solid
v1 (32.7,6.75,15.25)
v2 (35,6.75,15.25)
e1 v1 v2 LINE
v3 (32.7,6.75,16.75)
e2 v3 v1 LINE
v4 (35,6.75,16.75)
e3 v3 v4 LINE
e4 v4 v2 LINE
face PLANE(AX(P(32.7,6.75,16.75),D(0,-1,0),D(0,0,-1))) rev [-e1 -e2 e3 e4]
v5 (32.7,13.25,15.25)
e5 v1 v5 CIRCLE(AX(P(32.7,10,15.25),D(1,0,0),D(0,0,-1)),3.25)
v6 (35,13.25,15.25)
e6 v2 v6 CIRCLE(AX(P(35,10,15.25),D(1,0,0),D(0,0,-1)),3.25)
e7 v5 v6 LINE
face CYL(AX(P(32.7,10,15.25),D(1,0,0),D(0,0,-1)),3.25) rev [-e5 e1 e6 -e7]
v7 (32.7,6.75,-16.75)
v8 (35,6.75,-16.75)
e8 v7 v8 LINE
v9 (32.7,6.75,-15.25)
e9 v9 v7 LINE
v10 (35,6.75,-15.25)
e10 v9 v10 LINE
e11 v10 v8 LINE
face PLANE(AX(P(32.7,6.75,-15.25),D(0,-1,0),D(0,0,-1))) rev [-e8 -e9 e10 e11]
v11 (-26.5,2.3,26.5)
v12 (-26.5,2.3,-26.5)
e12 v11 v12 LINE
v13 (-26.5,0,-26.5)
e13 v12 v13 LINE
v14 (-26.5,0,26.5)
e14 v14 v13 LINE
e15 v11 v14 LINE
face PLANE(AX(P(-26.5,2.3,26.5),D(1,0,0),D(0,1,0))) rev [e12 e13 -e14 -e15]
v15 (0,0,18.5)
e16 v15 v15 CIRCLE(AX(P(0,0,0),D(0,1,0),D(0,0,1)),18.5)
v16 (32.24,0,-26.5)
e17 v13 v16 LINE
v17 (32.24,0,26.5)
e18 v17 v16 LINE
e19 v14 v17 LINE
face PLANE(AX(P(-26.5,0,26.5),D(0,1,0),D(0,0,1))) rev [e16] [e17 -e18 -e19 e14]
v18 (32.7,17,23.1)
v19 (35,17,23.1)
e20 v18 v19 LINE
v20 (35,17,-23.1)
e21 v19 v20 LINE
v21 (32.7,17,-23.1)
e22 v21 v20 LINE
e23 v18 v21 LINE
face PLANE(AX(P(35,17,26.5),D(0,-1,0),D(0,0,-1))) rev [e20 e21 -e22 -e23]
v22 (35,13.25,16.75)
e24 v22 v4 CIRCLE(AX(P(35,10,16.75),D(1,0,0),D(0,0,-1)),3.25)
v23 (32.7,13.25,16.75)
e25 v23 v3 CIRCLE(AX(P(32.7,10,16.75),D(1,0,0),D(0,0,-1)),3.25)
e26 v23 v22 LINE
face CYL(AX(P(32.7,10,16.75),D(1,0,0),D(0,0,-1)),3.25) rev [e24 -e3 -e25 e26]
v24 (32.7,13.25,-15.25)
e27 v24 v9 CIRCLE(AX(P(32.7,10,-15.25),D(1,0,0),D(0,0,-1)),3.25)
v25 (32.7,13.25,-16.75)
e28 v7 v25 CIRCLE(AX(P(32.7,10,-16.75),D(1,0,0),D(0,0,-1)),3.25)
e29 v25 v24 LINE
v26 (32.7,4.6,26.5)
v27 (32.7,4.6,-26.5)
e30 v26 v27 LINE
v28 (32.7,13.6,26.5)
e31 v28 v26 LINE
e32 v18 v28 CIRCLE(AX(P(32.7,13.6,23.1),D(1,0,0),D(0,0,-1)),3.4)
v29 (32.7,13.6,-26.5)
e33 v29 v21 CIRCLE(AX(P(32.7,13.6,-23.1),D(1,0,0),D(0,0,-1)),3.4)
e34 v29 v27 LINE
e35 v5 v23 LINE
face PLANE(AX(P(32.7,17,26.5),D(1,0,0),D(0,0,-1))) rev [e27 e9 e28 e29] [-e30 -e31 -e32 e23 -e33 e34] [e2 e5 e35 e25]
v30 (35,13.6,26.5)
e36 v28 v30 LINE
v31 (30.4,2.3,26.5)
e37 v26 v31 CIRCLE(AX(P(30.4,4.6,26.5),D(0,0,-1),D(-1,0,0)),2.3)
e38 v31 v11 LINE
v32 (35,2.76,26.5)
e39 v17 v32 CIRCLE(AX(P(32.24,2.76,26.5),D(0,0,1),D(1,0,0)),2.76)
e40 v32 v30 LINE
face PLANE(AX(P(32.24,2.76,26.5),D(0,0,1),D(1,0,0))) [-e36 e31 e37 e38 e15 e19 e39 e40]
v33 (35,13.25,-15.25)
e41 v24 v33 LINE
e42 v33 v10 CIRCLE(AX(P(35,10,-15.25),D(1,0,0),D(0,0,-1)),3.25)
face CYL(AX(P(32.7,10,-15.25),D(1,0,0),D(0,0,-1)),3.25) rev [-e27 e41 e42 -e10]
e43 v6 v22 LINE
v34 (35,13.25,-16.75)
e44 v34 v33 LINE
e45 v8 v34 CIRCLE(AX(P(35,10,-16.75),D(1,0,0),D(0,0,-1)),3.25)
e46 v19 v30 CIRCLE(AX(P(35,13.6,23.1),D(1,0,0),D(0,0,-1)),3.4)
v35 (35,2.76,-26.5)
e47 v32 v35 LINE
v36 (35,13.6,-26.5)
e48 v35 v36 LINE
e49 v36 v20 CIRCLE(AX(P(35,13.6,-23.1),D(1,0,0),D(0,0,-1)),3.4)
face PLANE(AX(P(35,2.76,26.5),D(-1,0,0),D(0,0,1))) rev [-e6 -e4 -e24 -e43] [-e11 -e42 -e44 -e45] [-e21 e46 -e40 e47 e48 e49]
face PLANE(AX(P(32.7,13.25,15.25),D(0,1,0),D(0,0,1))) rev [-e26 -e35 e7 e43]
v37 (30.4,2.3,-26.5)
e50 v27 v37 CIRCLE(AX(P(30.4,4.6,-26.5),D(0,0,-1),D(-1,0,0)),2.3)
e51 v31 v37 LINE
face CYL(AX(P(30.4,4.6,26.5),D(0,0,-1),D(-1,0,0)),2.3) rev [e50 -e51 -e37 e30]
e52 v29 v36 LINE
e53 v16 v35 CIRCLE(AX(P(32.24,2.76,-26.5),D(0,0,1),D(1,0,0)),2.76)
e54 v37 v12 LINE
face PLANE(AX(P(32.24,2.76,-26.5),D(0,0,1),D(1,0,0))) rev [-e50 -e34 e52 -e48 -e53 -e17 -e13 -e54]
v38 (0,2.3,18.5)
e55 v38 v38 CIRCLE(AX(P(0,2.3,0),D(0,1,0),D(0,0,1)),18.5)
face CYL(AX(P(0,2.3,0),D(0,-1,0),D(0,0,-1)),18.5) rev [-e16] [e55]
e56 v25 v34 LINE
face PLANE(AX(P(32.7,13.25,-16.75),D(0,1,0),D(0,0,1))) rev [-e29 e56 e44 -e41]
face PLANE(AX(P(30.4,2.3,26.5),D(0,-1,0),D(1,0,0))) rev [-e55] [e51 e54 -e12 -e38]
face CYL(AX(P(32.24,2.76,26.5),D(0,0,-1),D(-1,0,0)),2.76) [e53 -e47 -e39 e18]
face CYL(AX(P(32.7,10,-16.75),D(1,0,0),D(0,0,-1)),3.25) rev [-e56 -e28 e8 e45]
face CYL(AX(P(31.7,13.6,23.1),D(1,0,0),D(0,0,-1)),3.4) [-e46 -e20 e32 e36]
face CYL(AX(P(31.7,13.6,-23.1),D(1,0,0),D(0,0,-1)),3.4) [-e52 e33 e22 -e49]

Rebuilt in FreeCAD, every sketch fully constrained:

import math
import FreeCAD as App
import Part
import Sketcher


def add_polygon(sketch, points):
    """Adds a closed chain of lines whose ends are joined by coincident constraints."""
    first, n = sketch.GeometryCount, len(points)
    for a, b in zip(points, points[1:] + points[:1]):
        sketch.addGeometry(Part.LineSegment(App.Vector(*a, 0), App.Vector(*b, 0)), False)
    for i in range(n):
        sketch.addConstraint(Sketcher.Constraint("Coincident", first + i, 2, first + (i + 1) % n, 1))

doc = App.newDocument("Part")
body = doc.addObject("PartDesign::Body", "Body")

sketch1 = body.newObject("Sketcher::SketchObject", "Sketch")
sketch1.AttachmentSupport = (doc.getObject("XY_Plane"), [""])
sketch1.MapMode = "FlatFace"
sketch1.addGeometry([
    Part.LineSegment(App.Vector(-26.5, 0, 0), App.Vector(32.2, 0, 0)),
    Part.ArcOfCircle(Part.Circle(App.Vector(32.2, 2.8, 0), App.Vector(0, 0, 1), 2.8), math.radians(-90), math.radians(0)),
    Part.LineSegment(App.Vector(35, 2.8, 0), App.Vector(35, 17, 0)),
    Part.LineSegment(App.Vector(35, 17, 0), App.Vector(32.7, 17, 0)),
    Part.LineSegment(App.Vector(32.7, 17, 0), App.Vector(32.7, 4.6, 0)),
    Part.ArcOfCircle(Part.Circle(App.Vector(30.4, 4.6, 0), App.Vector(0, 0, 1), 2.3), math.radians(-90), math.radians(0)),
    Part.LineSegment(App.Vector(30.4, 2.3, 0), App.Vector(-26.5, 2.3, 0)),
    Part.LineSegment(App.Vector(-26.5, 2.3, 0), App.Vector(-26.5, 0, 0)),
], False)
sketch1.addConstraint([
    Sketcher.Constraint("Tangent", 0, 2, 1, 1),
    Sketcher.Constraint("Tangent", 1, 2, 2, 1),
    Sketcher.Constraint("Coincident", 2, 2, 3, 1),
    Sketcher.Constraint("Coincident", 3, 2, 4, 1),
    Sketcher.Constraint("Tangent", 4, 2, 5, 2),
    Sketcher.Constraint("Tangent", 5, 1, 6, 1),
    Sketcher.Constraint("Coincident", 6, 2, 7, 1),
    Sketcher.Constraint("Coincident", 7, 2, 0, 1),
    Sketcher.Constraint("Horizontal", 0),
    Sketcher.Constraint("Vertical", 2),
    Sketcher.Constraint("Horizontal", 3),
    Sketcher.Constraint("Vertical", 4),
    Sketcher.Constraint("Horizontal", 6),
    Sketcher.Constraint("Vertical", 7),
    Sketcher.Constraint("PointOnObject", 0, 2, -1),
    Sketcher.Constraint("Equal", 3, 7),
    Sketcher.Constraint("Radius", 5, 2.3),
    Sketcher.Constraint("Radius", 1, 2.76),
    Sketcher.Constraint("DistanceX", 3, 2, 3, 1, 2.3),
    Sketcher.Constraint("DistanceX", 6, 2, 6, 1, 56.9),
    Sketcher.Constraint("DistanceY", 4, 2, 4, 1, 12.4),
    Sketcher.Constraint("DistanceX", -1, 1, 1, 2, 35.0),
])
pad1 = body.newObject("PartDesign::Pad", "Pad")
pad1.Profile = sketch1
pad1.Type = "TwoLengths"
pad1.Length = 26.5
pad1.Length2 = 26.5

sketch2 = body.newObject("Sketcher::SketchObject", "Sketch001")
sketch2.AttachmentSupport = (doc.getObject("YZ_Plane"), [""])
sketch2.MapMode = "FlatFace"
sketch2.AttachmentOffset = App.Placement(App.Vector(0, 0, 35), App.Rotation())
sketch2.addGeometry([
    Part.LineSegment(App.Vector(6.8, 16.8, 0), App.Vector(6.8, 15.2, 0)),
    Part.ArcOfCircle(Part.Circle(App.Vector(10, 15.2, 0), App.Vector(0, 0, 1), 3.2), math.radians(180), math.radians(270)),
    Part.ArcOfCircle(Part.Circle(App.Vector(10, 15.2, 0), App.Vector(0, 0, 1), 3.2), math.radians(-90), math.radians(0)),
    Part.LineSegment(App.Vector(13.2, 15.2, 0), App.Vector(13.2, 16.8, 0)),
    Part.ArcOfCircle(Part.Circle(App.Vector(10, 16.8, 0), App.Vector(0, 0, 1), 3.2), math.radians(0), math.radians(90)),
    Part.ArcOfCircle(Part.Circle(App.Vector(10, 16.8, 0), App.Vector(0, 0, 1), 3.2), math.radians(90), math.radians(180)),
], False)
sketch2.addConstraint([
    Sketcher.Constraint("Tangent", 0, 2, 1, 1),
    Sketcher.Constraint("Tangent", 1, 2, 2, 1),
    Sketcher.Constraint("Tangent", 2, 2, 3, 1),
    Sketcher.Constraint("Tangent", 3, 2, 4, 1),
    Sketcher.Constraint("Tangent", 4, 2, 5, 1),
    Sketcher.Constraint("Tangent", 5, 2, 0, 1),
    Sketcher.Constraint("Vertical", 0),
    Sketcher.Constraint("Vertical", 3),
    Sketcher.Constraint("Equal", 1, 2),
    Sketcher.Constraint("Equal", 2, 4),
    Sketcher.Constraint("Vertical", 5, 3, 1, 2),
    Sketcher.Constraint("Vertical", 1, 2, 4, 2),
    Sketcher.Constraint("Radius", 1, 3.25),
    Sketcher.Constraint("DistanceY", 0, 2, 0, 1, 1.5),
    Sketcher.Constraint("DistanceX", -1, 1, 1, 3, 10.0),
    Sketcher.Constraint("DistanceY", -1, 1, 1, 2, 12.0),
])
pocket1 = body.newObject("PartDesign::Pocket", "Pocket")
pocket1.Profile = sketch2
pocket1.Length = 2.3

sketch3 = body.newObject("Sketcher::SketchObject", "Sketch002")
sketch3.AttachmentSupport = (doc.getObject("YZ_Plane"), [""])
sketch3.MapMode = "FlatFace"
sketch3.AttachmentOffset = App.Placement(App.Vector(0, 0, 35), App.Rotation())
sketch3.addGeometry([
    Part.LineSegment(App.Vector(6.8, -15.2, 0), App.Vector(6.8, -16.8, 0)),
    Part.ArcOfCircle(Part.Circle(App.Vector(10, -16.8, 0), App.Vector(0, 0, 1), 3.2), math.radians(180), math.radians(270)),
    Part.ArcOfCircle(Part.Circle(App.Vector(10, -16.8, 0), App.Vector(0, 0, 1), 3.2), math.radians(-90), math.radians(0)),
    Part.LineSegment(App.Vector(13.2, -16.8, 0), App.Vector(13.2, -15.2, 0)),
    Part.ArcOfCircle(Part.Circle(App.Vector(10, -15.2, 0), App.Vector(0, 0, 1), 3.2), math.radians(0), math.radians(90)),
    Part.ArcOfCircle(Part.Circle(App.Vector(10, -15.2, 0), App.Vector(0, 0, 1), 3.2), math.radians(90), math.radians(180)),
], False)
sketch3.addConstraint([
    Sketcher.Constraint("Tangent", 0, 2, 1, 1),
    Sketcher.Constraint("Tangent", 1, 2, 2, 1),
    Sketcher.Constraint("Tangent", 2, 2, 3, 1),
    Sketcher.Constraint("Tangent", 3, 2, 4, 1),
    Sketcher.Constraint("Tangent", 4, 2, 5, 1),
    Sketcher.Constraint("Tangent", 5, 2, 0, 1),
    Sketcher.Constraint("Vertical", 0),
    Sketcher.Constraint("Vertical", 3),
    Sketcher.Constraint("Equal", 1, 2),
    Sketcher.Constraint("Equal", 2, 4),
    Sketcher.Constraint("Vertical", 5, 3, 1, 2),
    Sketcher.Constraint("Vertical", 1, 2, 4, 2),
    Sketcher.Constraint("Radius", 1, 3.25),
    Sketcher.Constraint("DistanceY", 0, 2, 0, 1, 1.5),
    Sketcher.Constraint("DistanceX", -1, 1, 1, 3, 10.0),
    Sketcher.Constraint("DistanceY", 1, 2, -1, 1, 20.0),
])
pocket2 = body.newObject("PartDesign::Pocket", "Pocket001")
pocket2.Profile = sketch3
pocket2.Length = 2.3

sketch4 = body.newObject("Sketcher::SketchObject", "Sketch003")
sketch4.AttachmentSupport = (doc.getObject("XZ_Plane"), [""])
sketch4.MapMode = "FlatFace"
sketch4.addGeometry(Part.Circle(App.Vector(0, 0, 0), App.Vector(0, 0, 1), 18), False)
sketch4.addConstraint([
    Sketcher.Constraint("Coincident", 0, 3, -1, 1),
    Sketcher.Constraint("Diameter", 0, 37.0),
])
pocket3 = body.newObject("PartDesign::Pocket", "Pocket002")
pocket3.Profile = sketch4
pocket3.Length = 2.3

sketch5 = body.newObject("Sketcher::SketchObject", "Sketch004")
sketch5.AttachmentSupport = (doc.getObject("YZ_Plane"), [""])
sketch5.MapMode = "FlatFace"
sketch5.AttachmentOffset = App.Placement(App.Vector(0, 0, 35), App.Rotation())
add_polygon(sketch5, [(65.2, 67.1), (-37.5, 67.1), (-37.5, -75.1), (65.2, -75.1)])
sketch5.addGeometry(Part.LineSegment(App.Vector(0, -26.5, 0), App.Vector(0, 26.5, 0)), False)
sketch5.addGeometry(Part.LineSegment(App.Vector(0, 26.5, 0), App.Vector(13.6, 26.5, 0)), False)
sketch5.addGeometry(Part.ArcOfCircle(Part.Circle(App.Vector(13.6, 23.1, 0), App.Vector(0, 0, 1), 3.4), math.radians(0), math.radians(90)), False)
sketch5.addGeometry(Part.LineSegment(App.Vector(17, 23.1, 0), App.Vector(17, -23.1, 0)), False)
sketch5.addGeometry(Part.ArcOfCircle(Part.Circle(App.Vector(13.6, -23.1, 0), App.Vector(0, 0, 1), 3.4), math.radians(-90), math.radians(0)), False)
sketch5.addGeometry(Part.LineSegment(App.Vector(13.6, -26.5, 0), App.Vector(0, -26.5, 0)), False)
sketch5.addConstraint([
    Sketcher.Constraint("Coincident", 4, 2, 5, 1),
    Sketcher.Constraint("Tangent", 5, 2, 6, 2),
    Sketcher.Constraint("Tangent", 6, 1, 7, 1),
    Sketcher.Constraint("Tangent", 7, 2, 8, 2),
    Sketcher.Constraint("Tangent", 8, 1, 9, 1),
    Sketcher.Constraint("Coincident", 9, 2, 4, 1),
    Sketcher.Constraint("Horizontal", 0),
    Sketcher.Constraint("Vertical", 1),
    Sketcher.Constraint("Horizontal", 2),
    Sketcher.Constraint("Vertical", 3),
    Sketcher.Constraint("Vertical", 4),
    Sketcher.Constraint("Horizontal", 5),
    Sketcher.Constraint("Vertical", 7),
    Sketcher.Constraint("Horizontal", 9),
    Sketcher.Constraint("Equal", 6, 8),
    Sketcher.Constraint("Symmetric", 4, 2, 9, 2, -1, 1),
    Sketcher.Constraint("Radius", 6, 3.4),
    Sketcher.Constraint("DistanceY", 4, 1, 4, 2, 53.0),
    Sketcher.Constraint("DistanceX", 5, 1, 5, 2, 13.6),
    Sketcher.Constraint("DistanceY", 1, 2, 1, 1, 142.23758),
    Sketcher.Constraint("DistanceX", 0, 2, 0, 1, 102.661015),
    Sketcher.Constraint("DistanceX", 0, 2, -1, 1, 37.462122),
    Sketcher.Constraint("DistanceY", -1, 1, 0, 2, 67.10162),
])
pocket4 = body.newObject("PartDesign::Pocket", "Pocket003")
pocket4.Profile = sketch5
pocket4.Length = 3.3

doc.recompute()
